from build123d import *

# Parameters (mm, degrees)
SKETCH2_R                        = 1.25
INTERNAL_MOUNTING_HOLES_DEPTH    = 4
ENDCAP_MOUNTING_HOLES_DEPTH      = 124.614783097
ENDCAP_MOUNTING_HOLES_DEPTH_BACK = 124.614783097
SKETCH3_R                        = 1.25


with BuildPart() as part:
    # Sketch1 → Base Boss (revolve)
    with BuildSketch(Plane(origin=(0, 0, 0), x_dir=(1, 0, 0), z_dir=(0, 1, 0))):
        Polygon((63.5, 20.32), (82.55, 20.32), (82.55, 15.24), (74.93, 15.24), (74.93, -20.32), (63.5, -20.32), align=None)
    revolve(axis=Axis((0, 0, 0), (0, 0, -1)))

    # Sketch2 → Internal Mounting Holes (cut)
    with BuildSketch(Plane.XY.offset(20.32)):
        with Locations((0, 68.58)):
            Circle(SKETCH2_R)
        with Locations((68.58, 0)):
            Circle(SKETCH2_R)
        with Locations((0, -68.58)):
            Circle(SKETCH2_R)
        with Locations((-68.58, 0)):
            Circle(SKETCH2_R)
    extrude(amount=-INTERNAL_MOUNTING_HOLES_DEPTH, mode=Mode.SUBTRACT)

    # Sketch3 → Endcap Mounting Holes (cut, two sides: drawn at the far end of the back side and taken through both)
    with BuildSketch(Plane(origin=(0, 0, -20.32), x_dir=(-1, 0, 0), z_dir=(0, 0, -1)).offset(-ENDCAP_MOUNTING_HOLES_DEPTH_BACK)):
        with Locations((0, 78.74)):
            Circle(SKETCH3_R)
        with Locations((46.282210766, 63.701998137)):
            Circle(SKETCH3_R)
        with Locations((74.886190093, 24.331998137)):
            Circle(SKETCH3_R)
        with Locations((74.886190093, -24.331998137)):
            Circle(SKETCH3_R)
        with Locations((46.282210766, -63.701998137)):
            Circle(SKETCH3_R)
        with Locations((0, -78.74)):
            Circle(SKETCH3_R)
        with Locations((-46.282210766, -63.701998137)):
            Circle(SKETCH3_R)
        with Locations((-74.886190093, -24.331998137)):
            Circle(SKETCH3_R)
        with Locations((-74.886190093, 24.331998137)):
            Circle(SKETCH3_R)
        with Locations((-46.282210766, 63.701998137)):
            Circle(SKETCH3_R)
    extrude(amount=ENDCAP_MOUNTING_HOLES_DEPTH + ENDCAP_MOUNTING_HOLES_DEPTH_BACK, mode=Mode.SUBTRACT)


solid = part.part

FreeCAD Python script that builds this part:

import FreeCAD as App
import Part
import Sketcher
Q = App.Units.Quantity

doc = App.newDocument("Part")
body = doc.addObject("PartDesign::Body", "Body")

# Sketch on XZ plane
sketch1 = body.newObject("Sketcher::SketchObject", "Sketch")
sketch1.AttachmentSupport = (doc.getObject("XZ_Plane"), [""])
sketch1.MapMode = "FlatFace"
sketch1.addGeometry(Part.LineSegment(App.Vector(83, -20, 0), App.Vector(64, -20, 0)), False)
sketch1.addGeometry(Part.LineSegment(App.Vector(64, -20, 0), App.Vector(64, 20, 0)), False)
sketch1.addGeometry(Part.LineSegment(App.Vector(64, 20, 0), App.Vector(75, 20, 0)), False)
sketch1.addGeometry(Part.LineSegment(App.Vector(75, 20, 0), App.Vector(75, -15, 0)), False)
sketch1.addGeometry(Part.LineSegment(App.Vector(75, -15, 0), App.Vector(83, -15, 0)), False)
sketch1.addGeometry(Part.LineSegment(App.Vector(83, -15, 0), App.Vector(83, -20, 0)), False)
sketch1.addConstraint(Sketcher.Constraint("Coincident", 0, 2, 1, 1))
sketch1.addConstraint(Sketcher.Constraint("Coincident", 1, 2, 2, 1))
sketch1.addConstraint(Sketcher.Constraint("Coincident", 2, 2, 3, 1))
sketch1.addConstraint(Sketcher.Constraint("Coincident", 3, 2, 4, 1))
sketch1.addConstraint(Sketcher.Constraint("Coincident", 4, 2, 5, 1))
sketch1.addConstraint(Sketcher.Constraint("Coincident", 5, 2, 0, 1))
sketch1.addConstraint(Sketcher.Constraint("Horizontal", 0))
sketch1.addConstraint(Sketcher.Constraint("Vertical", 1))
sketch1.addConstraint(Sketcher.Constraint("Horizontal", 2))
sketch1.addConstraint(Sketcher.Constraint("Vertical", 3))
sketch1.addConstraint(Sketcher.Constraint("Horizontal", 4))
sketch1.addConstraint(Sketcher.Constraint("Vertical", 5))
sketch1.addConstraint(Sketcher.Constraint("DistanceX", 4, 1, 4, 2, Q("0.3 in")))
sketch1.addConstraint(Sketcher.Constraint("DistanceY", 1, 1, 1, 2, Q("1.6 in")))
sketch1.addConstraint(Sketcher.Constraint("DistanceY", 3, 2, 3, 1, Q("1.4 in")))
sketch1.addConstraint(Sketcher.Constraint("DistanceX", 0, 2, 0, 1, Q("0.75 in")))
sketch1.addConstraint(Sketcher.Constraint("DistanceX", -1, 1, 0, 2, Q("2.5 in")))
sketch1.addConstraint(Sketcher.Constraint("DistanceY", 0, 2, -1, 1, Q("0.8 in")))
revolution = body.newObject("PartDesign::Revolution", "Revolution")
revolution.Profile = sketch1
revolution.ReferenceAxis = (sketch1, ["V_Axis"])
revolution.Angle = 360

# Sketch on XY plane
sketch2 = body.newObject("Sketcher::SketchObject", "Sketch001")
sketch2.AttachmentSupport = (doc.getObject("XY_Plane"), [""])
sketch2.MapMode = "FlatFace"
sketch2.AttachmentOffset = App.Placement(App.Vector(0, 0, 0.8 * 25.4), App.Rotation())
sketch2.addGeometry(Part.Circle(App.Vector(0, 68.6, 0), App.Vector(0, 0, 1), 1.2), False)
sketch2.addGeometry(Part.Circle(App.Vector(68.6, 0, 0), App.Vector(0, 0, 1), 1.2), False)
sketch2.addGeometry(Part.Circle(App.Vector(0, -68.6, 0), App.Vector(0, 0, 1), 1.2), False)
sketch2.addGeometry(Part.Circle(App.Vector(-68.6, 0, 0), App.Vector(0, 0, 1), 1.2), False)
sketch2.addConstraint(Sketcher.Constraint("Equal", 0, 1))
sketch2.addConstraint(Sketcher.Constraint("Equal", 1, 2))
sketch2.addConstraint(Sketcher.Constraint("Equal", 2, 3))
sketch2.addConstraint(Sketcher.Constraint("Symmetric", 0, 3, 2, 3, -1, 1))
sketch2.addConstraint(Sketcher.Constraint("Symmetric", 1, 3, 3, 3, -1, 1))
sketch2.addConstraint(Sketcher.Constraint("PointOnObject", 0, 3, -2))
sketch2.addConstraint(Sketcher.Constraint("PointOnObject", 1, 3, -1))
sketch2.addConstraint(Sketcher.Constraint("DistanceY", -1, 1, 0, 3, Q("2.7 in")))
sketch2.addConstraint(Sketcher.Constraint("DistanceX", -1, 1, 1, 3, Q("2.7 in")))
sketch2.addConstraint(Sketcher.Constraint("Diameter", 0, 2.5))
pocket1 = body.newObject("PartDesign::Pocket", "Pocket")
pocket1.Profile = sketch2
pocket1.Length = 4

# Sketch on XY plane
sketch3 = body.newObject("Sketcher::SketchObject", "Sketch002")
sketch3.AttachmentSupport = (doc.getObject("XY_Plane"), [""])
sketch3.MapMode = "FlatFace"
sketch3.AttachmentOffset = App.Placement(App.Vector(0, 0, -0.8 * 25.4), App.Rotation())
sketch3.addGeometry(Part.Circle(App.Vector(0, 78.7, 0), App.Vector(0, 0, 1), 1.2), False)
sketch3.addGeometry(Part.Circle(App.Vector(-46.3, 63.7, 0), App.Vector(0, 0, 1), 1.2), False)
sketch3.addGeometry(Part.Circle(App.Vector(-74.9, 24.3, 0), App.Vector(0, 0, 1), 1.2), False)
sketch3.addGeometry(Part.Circle(App.Vector(-74.9, -24.3, 0), App.Vector(0, 0, 1), 1.2), False)
sketch3.addGeometry(Part.Circle(App.Vector(-46.3, -63.7, 0), App.Vector(0, 0, 1), 1.2), False)
sketch3.addGeometry(Part.Circle(App.Vector(0, -78.7, 0), App.Vector(0, 0, 1), 1.2), False)
sketch3.addGeometry(Part.Circle(App.Vector(46.3, -63.7, 0), App.Vector(0, 0, 1), 1.2), False)
sketch3.addGeometry(Part.Circle(App.Vector(74.9, -24.3, 0), App.Vector(0, 0, 1), 1.2), False)
sketch3.addGeometry(Part.Circle(App.Vector(74.9, 24.3, 0), App.Vector(0, 0, 1), 1.2), False)
sketch3.addGeometry(Part.Circle(App.Vector(46.3, 63.7, 0), App.Vector(0, 0, 1), 1.2), False)
sketch3.addConstraint(Sketcher.Constraint("Equal", 0, 1))
sketch3.addConstraint(Sketcher.Constraint("Equal", 1, 2))
sketch3.addConstraint(Sketcher.Constraint("Equal", 2, 3))
sketch3.addConstraint(Sketcher.Constraint("Equal", 3, 4))
sketch3.addConstraint(Sketcher.Constraint("Equal", 4, 5))
sketch3.addConstraint(Sketcher.Constraint("Equal", 5, 6))
sketch3.addConstraint(Sketcher.Constraint("Equal", 6, 7))
sketch3.addConstraint(Sketcher.Constraint("Equal", 7, 8))
sketch3.addConstraint(Sketcher.Constraint("Equal", 8, 9))
sketch3.addConstraint(Sketcher.Constraint("Symmetric", 0, 3, 5, 3, -1, 1))
sketch3.addConstraint(Sketcher.Constraint("Symmetric", 1, 3, 6, 3, -1, 1))
sketch3.addConstraint(Sketcher.Constraint("Symmetric", 2, 3, 7, 3, -1, 1))
sketch3.addConstraint(Sketcher.Constraint("Symmetric", 3, 3, 8, 3, -1, 1))
sketch3.addConstraint(Sketcher.Constraint("Symmetric", 4, 3, 9, 3, -1, 1))
sketch3.addConstraint(Sketcher.Constraint("Symmetric", 4, 3, 6, 3, -2))
sketch3.addConstraint(Sketcher.Constraint("Symmetric", 3, 3, 7, 3, -2))
sketch3.addConstraint(Sketcher.Constraint("PointOnObject", 0, 3, -2))
sketch3.addConstraint(Sketcher.Constraint("DistanceY", -1, 1, 0, 3, Q("3.1 in")))
sketch3.addConstraint(Sketcher.Constraint("Diameter", 0, 2.5))
sketch3.addConstraint(Sketcher.Constraint("DistanceY", 2, 3, 1, 3, Q("1.55 in")))
sketch3.addConstraint(Sketcher.Constraint("DistanceY", -1, 1, 1, 3, 63.701998))
sketch3.addConstraint(Sketcher.Constraint("DistanceX", 3, 3, 6, 3, 121.168401))
sketch3.addConstraint(Sketcher.Constraint("DistanceX", 1, 3, -1, 1, 46.282211))
pocket2 = body.newObject("PartDesign::Pocket", "Pocket001")
pocket2.Profile = sketch3
pocket2.Type = "ThroughAll"
pocket2.Midplane = True

doc.recompute()
